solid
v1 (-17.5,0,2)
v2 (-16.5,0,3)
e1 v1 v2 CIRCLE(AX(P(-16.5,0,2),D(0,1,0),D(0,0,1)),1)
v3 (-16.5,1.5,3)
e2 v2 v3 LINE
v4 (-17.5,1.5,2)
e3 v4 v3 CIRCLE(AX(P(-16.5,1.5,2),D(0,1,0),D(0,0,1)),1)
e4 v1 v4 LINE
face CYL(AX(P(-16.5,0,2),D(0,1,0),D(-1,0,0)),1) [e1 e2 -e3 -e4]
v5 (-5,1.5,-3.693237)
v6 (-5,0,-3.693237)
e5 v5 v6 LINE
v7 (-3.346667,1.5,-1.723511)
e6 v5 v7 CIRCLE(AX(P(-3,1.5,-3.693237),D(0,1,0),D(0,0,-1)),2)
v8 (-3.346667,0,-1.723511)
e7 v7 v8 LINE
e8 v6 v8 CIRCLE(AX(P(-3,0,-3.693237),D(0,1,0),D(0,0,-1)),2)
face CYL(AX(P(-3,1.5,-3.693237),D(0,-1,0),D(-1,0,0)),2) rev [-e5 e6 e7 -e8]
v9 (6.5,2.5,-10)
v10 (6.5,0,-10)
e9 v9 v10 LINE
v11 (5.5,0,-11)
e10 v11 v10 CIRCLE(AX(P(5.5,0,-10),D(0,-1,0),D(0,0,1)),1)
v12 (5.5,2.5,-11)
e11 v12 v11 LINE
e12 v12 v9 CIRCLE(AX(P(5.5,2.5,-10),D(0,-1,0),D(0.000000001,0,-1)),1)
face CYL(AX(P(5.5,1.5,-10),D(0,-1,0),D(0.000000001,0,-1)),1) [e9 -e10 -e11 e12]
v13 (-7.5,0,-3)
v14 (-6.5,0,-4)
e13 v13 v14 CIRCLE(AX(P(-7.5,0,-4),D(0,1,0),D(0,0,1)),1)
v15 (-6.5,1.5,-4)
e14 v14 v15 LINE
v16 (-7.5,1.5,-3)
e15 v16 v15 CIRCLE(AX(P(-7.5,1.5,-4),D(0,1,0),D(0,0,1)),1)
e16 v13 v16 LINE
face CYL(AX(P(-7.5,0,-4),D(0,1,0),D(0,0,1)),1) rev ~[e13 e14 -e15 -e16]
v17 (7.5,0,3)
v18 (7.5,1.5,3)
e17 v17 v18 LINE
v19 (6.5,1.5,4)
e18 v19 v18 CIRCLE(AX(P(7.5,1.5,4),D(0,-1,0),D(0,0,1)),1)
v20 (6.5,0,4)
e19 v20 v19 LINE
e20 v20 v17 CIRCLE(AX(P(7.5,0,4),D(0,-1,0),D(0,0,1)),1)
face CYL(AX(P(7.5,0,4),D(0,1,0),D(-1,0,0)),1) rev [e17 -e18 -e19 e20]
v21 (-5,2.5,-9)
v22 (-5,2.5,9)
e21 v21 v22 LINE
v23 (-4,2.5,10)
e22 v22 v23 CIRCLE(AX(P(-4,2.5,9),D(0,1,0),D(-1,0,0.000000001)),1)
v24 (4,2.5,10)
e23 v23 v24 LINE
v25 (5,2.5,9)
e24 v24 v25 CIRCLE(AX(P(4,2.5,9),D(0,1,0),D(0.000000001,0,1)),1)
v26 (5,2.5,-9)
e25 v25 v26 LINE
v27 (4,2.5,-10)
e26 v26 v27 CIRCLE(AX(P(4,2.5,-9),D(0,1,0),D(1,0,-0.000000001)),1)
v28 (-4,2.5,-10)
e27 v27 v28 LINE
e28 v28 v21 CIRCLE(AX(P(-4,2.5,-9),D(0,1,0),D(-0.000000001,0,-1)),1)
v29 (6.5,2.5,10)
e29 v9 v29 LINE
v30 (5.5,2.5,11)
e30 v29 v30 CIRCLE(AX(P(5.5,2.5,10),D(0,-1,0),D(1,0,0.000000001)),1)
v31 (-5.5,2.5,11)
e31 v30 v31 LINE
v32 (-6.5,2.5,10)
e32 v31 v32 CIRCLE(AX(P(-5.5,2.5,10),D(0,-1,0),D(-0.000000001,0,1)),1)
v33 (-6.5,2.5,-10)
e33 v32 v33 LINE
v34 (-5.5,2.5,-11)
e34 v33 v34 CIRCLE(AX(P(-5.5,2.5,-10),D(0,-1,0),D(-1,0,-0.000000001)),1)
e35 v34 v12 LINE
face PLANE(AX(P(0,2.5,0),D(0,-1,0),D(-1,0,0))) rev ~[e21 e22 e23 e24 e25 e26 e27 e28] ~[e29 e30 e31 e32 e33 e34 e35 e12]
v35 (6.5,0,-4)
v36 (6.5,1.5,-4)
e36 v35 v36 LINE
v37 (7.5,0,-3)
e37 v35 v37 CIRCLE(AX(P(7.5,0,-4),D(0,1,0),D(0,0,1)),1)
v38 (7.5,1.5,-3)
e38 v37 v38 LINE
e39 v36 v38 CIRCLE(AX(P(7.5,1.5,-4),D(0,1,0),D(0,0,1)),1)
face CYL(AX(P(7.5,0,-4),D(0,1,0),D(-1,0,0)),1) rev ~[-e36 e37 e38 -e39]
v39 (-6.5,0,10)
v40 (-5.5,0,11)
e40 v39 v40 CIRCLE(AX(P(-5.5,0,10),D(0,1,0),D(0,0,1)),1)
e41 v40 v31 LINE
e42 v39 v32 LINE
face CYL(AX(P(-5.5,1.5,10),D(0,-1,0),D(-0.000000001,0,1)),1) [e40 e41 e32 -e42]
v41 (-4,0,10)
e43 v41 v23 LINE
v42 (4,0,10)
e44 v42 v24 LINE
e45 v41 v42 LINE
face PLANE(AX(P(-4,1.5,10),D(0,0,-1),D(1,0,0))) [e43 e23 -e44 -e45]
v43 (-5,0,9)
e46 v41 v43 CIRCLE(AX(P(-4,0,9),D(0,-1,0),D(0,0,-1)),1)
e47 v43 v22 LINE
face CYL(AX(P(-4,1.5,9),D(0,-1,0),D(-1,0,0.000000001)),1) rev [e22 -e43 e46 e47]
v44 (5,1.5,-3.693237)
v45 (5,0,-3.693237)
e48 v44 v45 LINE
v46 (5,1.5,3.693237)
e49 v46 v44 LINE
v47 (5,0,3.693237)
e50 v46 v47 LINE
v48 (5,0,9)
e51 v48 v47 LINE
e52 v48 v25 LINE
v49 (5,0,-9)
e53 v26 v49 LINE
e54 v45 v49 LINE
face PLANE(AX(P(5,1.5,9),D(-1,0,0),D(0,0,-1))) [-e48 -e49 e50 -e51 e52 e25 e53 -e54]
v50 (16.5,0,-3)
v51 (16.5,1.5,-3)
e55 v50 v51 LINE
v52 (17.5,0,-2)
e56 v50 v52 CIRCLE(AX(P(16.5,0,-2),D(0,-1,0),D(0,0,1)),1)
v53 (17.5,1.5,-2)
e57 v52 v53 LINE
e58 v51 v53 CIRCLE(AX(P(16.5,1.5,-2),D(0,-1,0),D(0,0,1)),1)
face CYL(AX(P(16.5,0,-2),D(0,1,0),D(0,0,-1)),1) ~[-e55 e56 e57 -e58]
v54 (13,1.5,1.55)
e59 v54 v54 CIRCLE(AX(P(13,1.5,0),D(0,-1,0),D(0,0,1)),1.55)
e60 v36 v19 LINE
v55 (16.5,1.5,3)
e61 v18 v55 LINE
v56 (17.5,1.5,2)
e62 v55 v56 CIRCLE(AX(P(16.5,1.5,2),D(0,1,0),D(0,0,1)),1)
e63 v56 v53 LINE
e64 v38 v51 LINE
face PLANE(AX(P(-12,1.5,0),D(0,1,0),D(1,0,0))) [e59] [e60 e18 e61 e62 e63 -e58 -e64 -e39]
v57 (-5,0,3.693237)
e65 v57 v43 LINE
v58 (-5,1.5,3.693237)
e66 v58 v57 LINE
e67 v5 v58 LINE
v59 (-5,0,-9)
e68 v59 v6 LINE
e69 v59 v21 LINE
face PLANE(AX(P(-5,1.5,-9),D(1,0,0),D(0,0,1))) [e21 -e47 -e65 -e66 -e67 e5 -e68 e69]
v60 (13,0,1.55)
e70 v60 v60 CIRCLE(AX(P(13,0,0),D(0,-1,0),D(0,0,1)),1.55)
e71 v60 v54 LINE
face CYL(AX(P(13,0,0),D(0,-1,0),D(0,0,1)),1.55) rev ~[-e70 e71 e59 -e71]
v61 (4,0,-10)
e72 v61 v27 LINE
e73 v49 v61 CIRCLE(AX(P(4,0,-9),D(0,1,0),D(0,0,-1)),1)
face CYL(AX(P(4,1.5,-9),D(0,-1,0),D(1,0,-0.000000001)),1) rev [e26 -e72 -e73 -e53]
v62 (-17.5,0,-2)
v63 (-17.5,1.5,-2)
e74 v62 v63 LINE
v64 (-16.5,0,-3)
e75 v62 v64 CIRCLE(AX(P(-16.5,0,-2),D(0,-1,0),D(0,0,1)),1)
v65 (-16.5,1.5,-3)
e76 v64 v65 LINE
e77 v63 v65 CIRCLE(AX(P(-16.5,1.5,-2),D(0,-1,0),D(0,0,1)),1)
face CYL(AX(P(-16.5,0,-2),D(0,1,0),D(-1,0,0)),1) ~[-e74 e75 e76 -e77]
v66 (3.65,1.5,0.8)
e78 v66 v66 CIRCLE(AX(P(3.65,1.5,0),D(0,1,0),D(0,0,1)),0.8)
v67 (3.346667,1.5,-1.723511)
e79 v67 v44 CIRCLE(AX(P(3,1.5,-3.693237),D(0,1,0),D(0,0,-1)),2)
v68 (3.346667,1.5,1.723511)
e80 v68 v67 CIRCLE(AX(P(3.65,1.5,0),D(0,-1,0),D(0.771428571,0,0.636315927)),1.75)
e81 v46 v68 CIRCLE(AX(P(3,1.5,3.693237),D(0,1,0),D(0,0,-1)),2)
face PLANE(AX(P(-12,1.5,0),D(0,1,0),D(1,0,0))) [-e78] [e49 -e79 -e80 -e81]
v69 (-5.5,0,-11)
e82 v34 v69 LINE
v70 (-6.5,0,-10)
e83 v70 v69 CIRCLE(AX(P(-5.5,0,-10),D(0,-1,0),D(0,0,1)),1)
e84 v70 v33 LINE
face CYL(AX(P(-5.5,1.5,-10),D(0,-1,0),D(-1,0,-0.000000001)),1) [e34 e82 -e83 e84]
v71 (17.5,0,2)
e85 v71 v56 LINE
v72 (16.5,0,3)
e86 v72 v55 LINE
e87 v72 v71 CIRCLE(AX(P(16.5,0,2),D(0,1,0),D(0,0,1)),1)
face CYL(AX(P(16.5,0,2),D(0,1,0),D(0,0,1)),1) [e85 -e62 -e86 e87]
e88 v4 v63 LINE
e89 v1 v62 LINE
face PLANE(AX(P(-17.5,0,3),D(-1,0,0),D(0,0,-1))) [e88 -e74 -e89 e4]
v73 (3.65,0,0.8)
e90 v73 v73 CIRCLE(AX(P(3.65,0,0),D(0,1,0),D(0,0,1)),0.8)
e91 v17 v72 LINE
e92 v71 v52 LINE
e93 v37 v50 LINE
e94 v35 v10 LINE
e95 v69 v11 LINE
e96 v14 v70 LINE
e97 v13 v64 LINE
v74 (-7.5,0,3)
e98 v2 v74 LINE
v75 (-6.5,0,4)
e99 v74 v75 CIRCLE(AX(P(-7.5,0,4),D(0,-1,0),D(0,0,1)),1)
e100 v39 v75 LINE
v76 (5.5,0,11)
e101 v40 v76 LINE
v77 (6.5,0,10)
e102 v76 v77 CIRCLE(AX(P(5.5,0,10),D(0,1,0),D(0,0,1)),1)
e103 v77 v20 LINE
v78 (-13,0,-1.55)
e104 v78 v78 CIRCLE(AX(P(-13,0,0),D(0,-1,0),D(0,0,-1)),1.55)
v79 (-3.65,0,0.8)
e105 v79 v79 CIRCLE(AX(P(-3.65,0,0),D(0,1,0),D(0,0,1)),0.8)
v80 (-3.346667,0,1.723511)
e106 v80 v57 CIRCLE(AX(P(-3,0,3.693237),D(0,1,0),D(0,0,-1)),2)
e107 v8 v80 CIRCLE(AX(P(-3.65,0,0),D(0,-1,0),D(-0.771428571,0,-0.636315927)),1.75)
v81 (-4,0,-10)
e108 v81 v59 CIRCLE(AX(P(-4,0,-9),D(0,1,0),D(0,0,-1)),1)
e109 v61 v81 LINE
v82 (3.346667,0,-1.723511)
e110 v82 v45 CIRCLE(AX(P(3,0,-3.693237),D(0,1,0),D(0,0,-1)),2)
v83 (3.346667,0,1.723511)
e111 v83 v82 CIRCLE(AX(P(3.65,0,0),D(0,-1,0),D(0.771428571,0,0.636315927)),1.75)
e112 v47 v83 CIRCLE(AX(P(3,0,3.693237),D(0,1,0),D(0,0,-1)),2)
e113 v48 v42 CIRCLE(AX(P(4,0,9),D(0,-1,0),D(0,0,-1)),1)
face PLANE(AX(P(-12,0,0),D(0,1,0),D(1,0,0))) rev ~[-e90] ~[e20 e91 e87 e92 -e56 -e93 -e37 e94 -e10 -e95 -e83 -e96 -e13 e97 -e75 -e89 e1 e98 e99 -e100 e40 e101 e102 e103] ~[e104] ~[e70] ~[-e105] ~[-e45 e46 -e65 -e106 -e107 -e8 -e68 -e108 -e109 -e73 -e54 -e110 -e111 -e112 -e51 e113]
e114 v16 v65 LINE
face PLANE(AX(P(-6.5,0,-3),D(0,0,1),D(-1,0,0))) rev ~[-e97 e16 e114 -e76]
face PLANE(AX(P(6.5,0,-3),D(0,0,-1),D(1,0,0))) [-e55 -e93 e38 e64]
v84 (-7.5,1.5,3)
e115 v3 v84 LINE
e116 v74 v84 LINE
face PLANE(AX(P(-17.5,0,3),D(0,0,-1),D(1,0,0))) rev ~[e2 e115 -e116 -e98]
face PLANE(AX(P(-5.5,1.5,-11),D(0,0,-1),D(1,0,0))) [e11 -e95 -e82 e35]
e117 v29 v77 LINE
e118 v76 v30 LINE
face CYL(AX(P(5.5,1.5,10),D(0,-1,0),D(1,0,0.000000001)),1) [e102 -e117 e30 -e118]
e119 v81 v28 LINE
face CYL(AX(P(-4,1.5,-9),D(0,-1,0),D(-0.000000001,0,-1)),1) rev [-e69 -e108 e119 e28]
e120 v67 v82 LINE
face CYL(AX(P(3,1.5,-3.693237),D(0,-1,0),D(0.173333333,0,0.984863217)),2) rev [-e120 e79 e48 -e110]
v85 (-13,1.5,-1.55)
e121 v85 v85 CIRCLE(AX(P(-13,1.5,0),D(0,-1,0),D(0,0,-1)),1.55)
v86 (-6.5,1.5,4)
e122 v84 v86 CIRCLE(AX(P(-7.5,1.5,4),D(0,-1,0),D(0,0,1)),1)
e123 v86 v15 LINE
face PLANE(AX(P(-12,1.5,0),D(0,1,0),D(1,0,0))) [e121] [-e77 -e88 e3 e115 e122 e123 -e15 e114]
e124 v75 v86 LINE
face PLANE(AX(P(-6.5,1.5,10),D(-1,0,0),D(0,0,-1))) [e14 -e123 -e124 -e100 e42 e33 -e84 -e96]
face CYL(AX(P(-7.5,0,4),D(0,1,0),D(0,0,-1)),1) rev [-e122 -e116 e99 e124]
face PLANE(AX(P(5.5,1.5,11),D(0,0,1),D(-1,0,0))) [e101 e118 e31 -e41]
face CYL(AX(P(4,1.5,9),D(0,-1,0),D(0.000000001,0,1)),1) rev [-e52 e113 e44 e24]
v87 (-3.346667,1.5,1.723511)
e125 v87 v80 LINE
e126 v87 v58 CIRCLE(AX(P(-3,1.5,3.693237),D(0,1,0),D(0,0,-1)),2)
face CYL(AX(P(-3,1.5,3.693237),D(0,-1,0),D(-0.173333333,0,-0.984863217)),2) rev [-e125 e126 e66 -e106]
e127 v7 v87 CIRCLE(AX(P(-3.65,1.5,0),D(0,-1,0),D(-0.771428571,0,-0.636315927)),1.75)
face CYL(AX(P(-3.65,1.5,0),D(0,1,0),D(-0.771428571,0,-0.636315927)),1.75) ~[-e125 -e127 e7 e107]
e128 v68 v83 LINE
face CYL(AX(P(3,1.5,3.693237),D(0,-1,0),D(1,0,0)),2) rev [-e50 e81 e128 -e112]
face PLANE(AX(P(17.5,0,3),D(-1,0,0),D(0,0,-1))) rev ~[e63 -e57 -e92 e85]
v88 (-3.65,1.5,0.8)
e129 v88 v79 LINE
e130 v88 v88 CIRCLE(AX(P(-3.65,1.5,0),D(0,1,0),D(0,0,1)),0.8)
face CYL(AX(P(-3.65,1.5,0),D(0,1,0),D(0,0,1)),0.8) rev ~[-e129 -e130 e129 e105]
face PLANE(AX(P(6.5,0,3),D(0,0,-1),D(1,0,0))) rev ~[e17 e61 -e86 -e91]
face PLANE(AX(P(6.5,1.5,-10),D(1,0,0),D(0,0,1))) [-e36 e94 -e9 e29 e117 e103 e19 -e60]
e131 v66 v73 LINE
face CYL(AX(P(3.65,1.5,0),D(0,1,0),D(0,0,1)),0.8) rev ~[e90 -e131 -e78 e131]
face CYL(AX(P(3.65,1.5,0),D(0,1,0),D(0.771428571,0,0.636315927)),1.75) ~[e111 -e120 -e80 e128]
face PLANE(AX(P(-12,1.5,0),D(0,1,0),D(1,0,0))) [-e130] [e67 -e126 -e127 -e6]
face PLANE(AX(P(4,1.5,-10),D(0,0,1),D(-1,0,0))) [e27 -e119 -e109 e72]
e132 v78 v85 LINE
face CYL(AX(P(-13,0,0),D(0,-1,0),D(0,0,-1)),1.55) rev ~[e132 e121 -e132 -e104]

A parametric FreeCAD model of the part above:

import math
import FreeCAD as App
import Part
import Sketcher
from FreeCAD import Vector
Q = App.Units.Quantity


def edges_at(feature, points):
    """Names of the edges that pass closest to the given points."""
    edges = feature.Shape.Edges
    near = lambda p: min(range(len(edges)), key=lambda i: edges[i].distToShape(Part.Vertex(*p))[0])
    return sorted({f"Edge{near(p) + 1}" for p in points})


def add_polygon(sketch, points):
    """Adds a closed chain of lines whose ends are joined by coincident constraints."""
    first, n = sketch.GeometryCount, len(points)
    for a, b in zip(points, points[1:] + points[:1]):
        sketch.addGeometry(Part.LineSegment(App.Vector(*a, 0), App.Vector(*b, 0)), False)
    for i in range(n):
        sketch.addConstraint(Sketcher.Constraint("Coincident", first + i, 2, first + (i + 1) % n, 1))

doc = App.newDocument("Part")
params = doc.addObject("Spreadsheet::Sheet", "Params")
for row, (alias, value) in enumerate([
    ("sketch1_width", "11 mm"),
    ("sketch1_width2", "13 mm"),
    ("sketch1_height", "6 mm"),
    ("sketch1_height2", "8 mm"),
    ("pad1_length", "1.5 mm"),
    ("sketch2_width", "10 mm"),
    ("sketch2_radius", "1.75 mm"),
    ("pocket1_length", "1.5 mm"),
    ("fillet_radius", "2 mm"),
    ("fillet2_radius", "1 mm"),
    ("sketch3_diameter", "1.6 mm"),
    ("pocket2_length", "10 mm"),
    ("sketch4_radius", "1 mm"),
    ("sketch4_width", "11 mm"),
    ("sketch4_width2", "8 mm"),
    ("sketch4_height", "20 mm"),
    ("pad2_length", "1 mm"),
    ("sketch5_diameter", "3.1 mm"),
    ("pocket3_length", "10 mm"),
], start=1):
    params.set(f"A{row}", alias)
    params.set(f"B{row}", "=" + value)
    params.setAlias(f"B{row}", alias)

body = doc.addObject("PartDesign::Body", "Body")

sketch1 = body.newObject("Sketcher::SketchObject", "Sketch")
sketch1.AttachmentSupport = (doc.getObject("XZ_Plane"), [""])
sketch1.MapMode = "FlatFace"
add_polygon(sketch1, [(-18, -3), (-18, 3), (-6, 3), (-6, 11), (6, 11), (6, 3), (18, 3), (18, -3), (6, -3), (6, -11), (-6, -11), (-6, -3)])
sketch1.addConstraint([
    Sketcher.Constraint("Vertical", 0),
    Sketcher.Constraint("Horizontal", 1),
    Sketcher.Constraint("Vertical", 2),
    Sketcher.Constraint("Horizontal", 3),
    Sketcher.Constraint("Vertical", 4),
    Sketcher.Constraint("Horizontal", 5),
    Sketcher.Constraint("Vertical", 6),
    Sketcher.Constraint("Horizontal", 7),
    Sketcher.Constraint("Vertical", 8),
    Sketcher.Constraint("Horizontal", 9),
    Sketcher.Constraint("Vertical", 10),
    Sketcher.Constraint("Horizontal", 11),
    Sketcher.Constraint("Symmetric", 0, 2, 6, 2, -1, 1),
    Sketcher.Constraint("Symmetric", 2, 2, 8, 2, -1, 1),
    Sketcher.Constraint("Symmetric", 4, 2, 10, 2, -1, 1),
    Sketcher.Constraint("Symmetric", 1, 2, 4, 2, -2),
    Sketcher.Constraint("DistanceX", 1, 1, 1, 2, Q("11 mm")),
    Sketcher.Constraint("DistanceX", 3, 1, 3, 2, Q("13 mm")),
    Sketcher.Constraint("DistanceY", 0, 1, 0, 2, Q("6 mm")),
    Sketcher.Constraint("DistanceY", 2, 1, 2, 2, Q("8 mm")),
])
sketch1.setExpression("Constraints[28]", "Params.sketch1_width")
sketch1.setExpression("Constraints[29]", "Params.sketch1_width2")
sketch1.setExpression("Constraints[30]", "Params.sketch1_height")
sketch1.setExpression("Constraints[31]", "Params.sketch1_height2")
pad1 = body.newObject("PartDesign::Pad", "Pad")
pad1.Profile = sketch1
pad1.setExpression("Length", "Params.pad1_length")
pad1.Reversed = True

sketch2 = body.newObject("Sketcher::SketchObject", "Sketch001")
sketch2.AttachmentSupport = (doc.getObject("XZ_Plane"), [""])
sketch2.MapMode = "FlatFace"
sketch2.AttachmentOffset = App.Placement(Vector(0, 0, -1.5), App.Rotation())
sketch2.addGeometry([
    Part.LineSegment(Vector(-5, 10, 0), Vector(5, 10, 0)),
    Part.LineSegment(Vector(5, 10, 0), Vector(5, 1.1, 0)),
    Part.ArcOfCircle(Part.Circle(Vector(3.6, 0, 0), Vector(0, 0, 1), 1.8), math.radians(40), math.radians(320)),
    Part.LineSegment(Vector(5, -1.1, 0), Vector(5, -10, 0)),
    Part.LineSegment(Vector(5, -10, 0), Vector(-5, -10, 0)),
    Part.LineSegment(Vector(-5, -10, 0), Vector(-5, -1.1, 0)),
    Part.ArcOfCircle(Part.Circle(Vector(-3.6, 0, 0), Vector(0, 0, 1), 1.8), math.radians(-140), math.radians(140)),
    Part.LineSegment(Vector(-5, 1.1, 0), Vector(-5, 10, 0)),
], False)
sketch2.addConstraint([
    Sketcher.Constraint("Coincident", 0, 2, 1, 1),
    Sketcher.Constraint("Coincident", 1, 2, 2, 1),
    Sketcher.Constraint("Coincident", 2, 2, 3, 1),
    Sketcher.Constraint("Coincident", 3, 2, 4, 1),
    Sketcher.Constraint("Coincident", 4, 2, 5, 1),
    Sketcher.Constraint("Coincident", 5, 2, 6, 1),
    Sketcher.Constraint("Coincident", 6, 2, 7, 1),
    Sketcher.Constraint("Coincident", 7, 2, 0, 1),
    Sketcher.Constraint("Horizontal", 0),
    Sketcher.Constraint("Vertical", 1),
    Sketcher.Constraint("Vertical", 3),
    Sketcher.Constraint("Horizontal", 4),
    Sketcher.Constraint("Vertical", 5),
    Sketcher.Constraint("Vertical", 7),
    Sketcher.Constraint("Equal", 2, 6),
    Sketcher.Constraint("Symmetric", 2, 3, 6, 3, -1, 1),
    Sketcher.Constraint("Symmetric", 0, 2, 4, 2, -1, 1),
    Sketcher.Constraint("Symmetric", 2, 2, 5, 2, -2),
    Sketcher.Constraint("Horizontal", 1, 2, 6, 2),
    Sketcher.Constraint("DistanceX", 0, 1, 0, 2, Q("10 mm")),
    Sketcher.Constraint("Radius", 2, Q("1.75 mm")),
    Sketcher.Constraint("DistanceY", -1, 1, 0, 2, Q("10 mm")),
    Sketcher.Constraint("DistanceX", 6, 3, 2, 3, Q("7.3 mm")),
])
sketch2.setExpression("Constraints[19]", "Params.sketch2_width")
sketch2.setExpression("Constraints[20]", "Params.sketch2_radius")
pocket1 = body.newObject("PartDesign::Pocket", "Pocket")
pocket1.Profile = sketch2
pocket1.setExpression("Length", "Params.pocket1_length")
pocket1.Reversed = True
doc.recompute()

fillet = body.newObject("PartDesign::Fillet", "Fillet")
fillet.Base = (pocket1, edges_at(pocket1, [
    (5, 0.75, -1.114),
    (5, 0.75, 1.114),
    (-5, 0.75, 1.114),
    (-5, 0.75, -1.114),
]))
fillet.setExpression("Radius", "Params.fillet_radius")
doc.recompute()

fillet2 = body.newObject("PartDesign::Fillet", "Fillet001")
fillet2.Base = (fillet, edges_at(fillet, [
    (-6.5, 0.75, -3),
    (-6.5, 0.75, -11),
    (6.5, 0.75, -11),
    (6.5, 0.75, -3),
    (17.5, 0.75, -3),
    (17.5, 0.75, 3),
    (6.5, 0.75, 3),
    (6.5, 0.75, 11),
    (-6.5, 0.75, 11),
    (-6.5, 0.75, 3),
    (-17.5, 0.75, 3),
    (-17.5, 0.75, -3),
    (5, 0.75, -10),
    (5, 0.75, 10),
    (-5, 0.75, 10),
    (-5, 0.75, -10),
]))
fillet2.setExpression("Radius", "Params.fillet2_radius")

sketch3 = body.newObject("Sketcher::SketchObject", "Sketch002")
sketch3.AttachmentSupport = (doc.getObject("XZ_Plane"), [""])
sketch3.MapMode = "FlatFace"
sketch3.AttachmentOffset = App.Placement(Vector(0, 0, -1.5), App.Rotation())
sketch3.addGeometry([
    Part.Circle(Vector(-3.6, 0, 0), Vector(0, 0, 1), 0.8),
    Part.Circle(Vector(3.6, 0, 0), Vector(0, 0, 1), 0.8),
], False)
sketch3.addConstraint([
    Sketcher.Constraint("Equal", 0, 1),
    Sketcher.Constraint("Symmetric", 0, 3, 1, 3, -1, 1),
    Sketcher.Constraint("PointOnObject", 0, 3, -1),
    Sketcher.Constraint("Diameter", 0, Q("1.6 mm")),
    Sketcher.Constraint("DistanceX", 0, 3, 1, 3, Q("7.3 mm")),
])
sketch3.setExpression("Constraints[3]", "Params.sketch3_diameter")
pocket2 = body.newObject("PartDesign::Pocket", "Pocket001")
pocket2.Profile = sketch3
pocket2.setExpression("Length", "Params.pocket2_length")
pocket2.Reversed = True

sketch4 = body.newObject("Sketcher::SketchObject", "Sketch003")
sketch4.AttachmentSupport = (doc.getObject("XZ_Plane"), [""])
sketch4.MapMode = "FlatFace"
sketch4.AttachmentOffset = App.Placement(Vector(0, 0, -1.5), App.Rotation())
sketch4.addGeometry([
    Part.ArcOfCircle(Part.Circle(Vector(-5.5, -10, 0), Vector(0, 0, 1), 1), math.radians(-180), math.radians(-90)),
    Part.LineSegment(Vector(-6.5, -10, 0), Vector(-6.5, 10, 0)),
    Part.ArcOfCircle(Part.Circle(Vector(-5.5, 10, 0), Vector(0, 0, 1), 1), math.radians(90), math.radians(180)),
    Part.LineSegment(Vector(-5.5, 11, 0), Vector(5.5, 11, 0)),
    Part.ArcOfCircle(Part.Circle(Vector(5.5, 10, 0), Vector(0, 0, 1), 1), math.radians(0), math.radians(90)),
    Part.LineSegment(Vector(6.5, 10, 0), Vector(6.5, -10, 0)),
    Part.ArcOfCircle(Part.Circle(Vector(5.5, -10, 0), Vector(0, 0, 1), 1), math.radians(-90), math.radians(0)),
    Part.LineSegment(Vector(5.5, -11, 0), Vector(-5.5, -11, 0)),
    Part.LineSegment(Vector(5, -9, 0), Vector(5, 9, 0)),
    Part.ArcOfCircle(Part.Circle(Vector(4, 9, 0), Vector(0, 0, 1), 1), math.radians(0), math.radians(90)),
    Part.LineSegment(Vector(4, 10, 0), Vector(-4, 10, 0)),
    Part.ArcOfCircle(Part.Circle(Vector(-4, 9, 0), Vector(0, 0, 1), 1), math.radians(90), math.radians(180)),
    Part.LineSegment(Vector(-5, 9, 0), Vector(-5, -9, 0)),
    Part.ArcOfCircle(Part.Circle(Vector(-4, -9, 0), Vector(0, 0, 1), 1), math.radians(-180), math.radians(-90)),
    Part.LineSegment(Vector(-4, -10, 0), Vector(4, -10, 0)),
    Part.ArcOfCircle(Part.Circle(Vector(4, -9, 0), Vector(0, 0, 1), 1), math.radians(-90), math.radians(0)),
], False)
sketch4.addConstraint([
    Sketcher.Constraint("Tangent", 0, 1, 1, 1),
    Sketcher.Constraint("Tangent", 1, 2, 2, 2),
    Sketcher.Constraint("Tangent", 2, 1, 3, 1),
    Sketcher.Constraint("Tangent", 3, 2, 4, 2),
    Sketcher.Constraint("Tangent", 4, 1, 5, 1),
    Sketcher.Constraint("Tangent", 5, 2, 6, 2),
    Sketcher.Constraint("Tangent", 6, 1, 7, 1),
    Sketcher.Constraint("Tangent", 7, 2, 0, 2),
    Sketcher.Constraint("Tangent", 8, 2, 9, 1),
    Sketcher.Constraint("Tangent", 9, 2, 10, 1),
    Sketcher.Constraint("Tangent", 10, 2, 11, 1),
    Sketcher.Constraint("Tangent", 11, 2, 12, 1),
    Sketcher.Constraint("Tangent", 12, 2, 13, 1),
    Sketcher.Constraint("Tangent", 13, 2, 14, 1),
    Sketcher.Constraint("Tangent", 14, 2, 15, 1),
    Sketcher.Constraint("Tangent", 15, 2, 8, 1),
    Sketcher.Constraint("Vertical", 1),
    Sketcher.Constraint("Horizontal", 3),
    Sketcher.Constraint("Vertical", 5),
    Sketcher.Constraint("Horizontal", 7),
    Sketcher.Constraint("Vertical", 8),
    Sketcher.Constraint("Horizontal", 10),
    Sketcher.Constraint("Vertical", 12),
    Sketcher.Constraint("Horizontal", 14),
    Sketcher.Constraint("Equal", 0, 2),
    Sketcher.Constraint("Equal", 2, 4),
    Sketcher.Constraint("Equal", 4, 6),
    Sketcher.Constraint("Equal", 6, 9),
    Sketcher.Constraint("Equal", 9, 11),
    Sketcher.Constraint("Equal", 11, 13),
    Sketcher.Constraint("Equal", 13, 15),
    Sketcher.Constraint("Symmetric", 0, 3, 4, 3, -1, 1),
    Sketcher.Constraint("Symmetric", 9, 3, 13, 3, -1, 1),
    Sketcher.Constraint("Horizontal", 4, 1, 9, 2),
    Sketcher.Constraint("Radius", 0, Q("1 mm")),
    Sketcher.Constraint("DistanceX", 3, 1, 3, 2, Q("11 mm")),
    Sketcher.Constraint("DistanceX", 10, 2, 10, 1, Q("8 mm")),
    Sketcher.Constraint("DistanceY", 1, 1, 1, 2, Q("20 mm")),
])
sketch4.setExpression("Constraints[34]", "Params.sketch4_radius")
sketch4.setExpression("Constraints[35]", "Params.sketch4_width")
sketch4.setExpression("Constraints[36]", "Params.sketch4_width2")
sketch4.setExpression("Constraints[37]", "Params.sketch4_height")
pad2 = body.newObject("PartDesign::Pad", "Pad001")
pad2.Profile = sketch4
pad2.setExpression("Length", "Params.pad2_length")
pad2.Reversed = True

sketch5 = body.newObject("Sketcher::SketchObject", "Sketch004")
sketch5.AttachmentSupport = (doc.getObject("XZ_Plane"), [""])
sketch5.MapMode = "FlatFace"
sketch5.addGeometry([
    Part.Circle(Vector(-13, 0, 0), Vector(0, 0, 1), 1.6),
    Part.Circle(Vector(13, 0, 0), Vector(0, 0, 1), 1.6),
], False)
sketch5.addConstraint([
    Sketcher.Constraint("Equal", 0, 1),
    Sketcher.Constraint("Symmetric", 0, 3, 1, 3, -1, 1),
    Sketcher.Constraint("PointOnObject", 0, 3, -1),
    Sketcher.Constraint("Diameter", 0, Q("3.1 mm")),
    Sketcher.Constraint("DistanceX", 0, 3, -1, 1, Q("13 mm")),
])
sketch5.setExpression("Constraints[3]", "Params.sketch5_diameter")
pocket3 = body.newObject("PartDesign::Pocket", "Pocket002")
pocket3.Profile = sketch5
pocket3.setExpression("Length", "Params.pocket3_length")

doc.recompute()
